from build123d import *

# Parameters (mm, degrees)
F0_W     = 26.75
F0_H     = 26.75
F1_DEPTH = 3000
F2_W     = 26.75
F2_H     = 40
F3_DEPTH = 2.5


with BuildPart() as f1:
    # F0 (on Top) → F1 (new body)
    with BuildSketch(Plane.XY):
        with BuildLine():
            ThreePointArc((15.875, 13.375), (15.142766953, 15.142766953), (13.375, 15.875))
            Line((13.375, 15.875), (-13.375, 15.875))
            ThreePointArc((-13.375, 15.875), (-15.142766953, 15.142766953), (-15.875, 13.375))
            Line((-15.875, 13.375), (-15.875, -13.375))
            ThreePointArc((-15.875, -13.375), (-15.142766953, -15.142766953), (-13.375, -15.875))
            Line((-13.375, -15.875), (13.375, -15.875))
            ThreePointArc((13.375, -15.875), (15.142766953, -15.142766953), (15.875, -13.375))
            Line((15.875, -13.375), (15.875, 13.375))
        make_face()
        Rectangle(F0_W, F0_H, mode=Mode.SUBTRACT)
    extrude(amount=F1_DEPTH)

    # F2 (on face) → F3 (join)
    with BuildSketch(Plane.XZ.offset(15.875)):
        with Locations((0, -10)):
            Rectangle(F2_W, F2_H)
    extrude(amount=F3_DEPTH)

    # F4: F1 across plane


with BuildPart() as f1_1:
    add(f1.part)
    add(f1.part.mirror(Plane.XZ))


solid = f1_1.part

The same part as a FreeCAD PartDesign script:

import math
import FreeCAD as App
import Part
import Sketcher
from FreeCAD import Vector

doc = App.newDocument("Part")
body = doc.addObject("PartDesign::Body", "Body")

# Sketch on XY plane
sketch1 = body.newObject("Sketcher::SketchObject", "Sketch")
sketch1.AttachmentSupport = (doc.getObject("XY_Plane"), [""])
sketch1.MapMode = "FlatFace"
sketch1.addGeometry(Part.ArcOfCircle(Part.Circle(Vector(13.4, 13.4, 0), Vector(0, 0, 1), 2.5), math.radians(0), math.radians(90)), False)
sketch1.addGeometry(Part.LineSegment(Vector(13.4, 15.9, 0), Vector(-13.4, 15.9, 0)), False)
sketch1.addGeometry(Part.ArcOfCircle(Part.Circle(Vector(-13.4, 13.4, 0), Vector(0, 0, 1), 2.5), math.radians(90), math.radians(180)), False)
sketch1.addGeometry(Part.LineSegment(Vector(-15.9, 13.4, 0), Vector(-15.9, -13.4, 0)), False)
sketch1.addGeometry(Part.ArcOfCircle(Part.Circle(Vector(-13.4, -13.4, 0), Vector(0, 0, 1), 2.5), math.radians(180), math.radians(270)), False)
sketch1.addGeometry(Part.LineSegment(Vector(-13.4, -15.9, 0), Vector(13.4, -15.9, 0)), False)
sketch1.addGeometry(Part.ArcOfCircle(Part.Circle(Vector(13.4, -13.4, 0), Vector(0, 0, 1), 2.5), math.radians(-90), math.radians(0)), False)
sketch1.addGeometry(Part.LineSegment(Vector(15.9, -13.4, 0), Vector(15.9, 13.4, 0)), False)
sketch1.addGeometry(Part.LineSegment(Vector(13.4, -13.4, 0), Vector(-13.4, -13.4, 0)), False)
sketch1.addGeometry(Part.LineSegment(Vector(-13.4, -13.4, 0), Vector(-13.4, 13.4, 0)), False)
sketch1.addGeometry(Part.LineSegment(Vector(-13.4, 13.4, 0), Vector(13.4, 13.4, 0)), False)
sketch1.addGeometry(Part.LineSegment(Vector(13.4, 13.4, 0), Vector(13.4, -13.4, 0)), False)
sketch1.addConstraint(Sketcher.Constraint("Tangent", 0, 2, 1, 1))
sketch1.addConstraint(Sketcher.Constraint("Tangent", 1, 2, 2, 1))
sketch1.addConstraint(Sketcher.Constraint("Tangent", 2, 2, 3, 1))
sketch1.addConstraint(Sketcher.Constraint("Tangent", 3, 2, 4, 1))
sketch1.addConstraint(Sketcher.Constraint("Tangent", 4, 2, 5, 1))
sketch1.addConstraint(Sketcher.Constraint("Tangent", 5, 2, 6, 1))
sketch1.addConstraint(Sketcher.Constraint("Tangent", 6, 2, 7, 1))
sketch1.addConstraint(Sketcher.Constraint("Tangent", 7, 2, 0, 1))
sketch1.addConstraint(Sketcher.Constraint("Coincident", 8, 2, 9, 1))
sketch1.addConstraint(Sketcher.Constraint("Coincident", 9, 2, 10, 1))
sketch1.addConstraint(Sketcher.Constraint("Coincident", 10, 2, 11, 1))
sketch1.addConstraint(Sketcher.Constraint("Coincident", 11, 2, 8, 1))
sketch1.addConstraint(Sketcher.Constraint("Horizontal", 1))
sketch1.addConstraint(Sketcher.Constraint("Vertical", 3))
sketch1.addConstraint(Sketcher.Constraint("Horizontal", 5))
sketch1.addConstraint(Sketcher.Constraint("Vertical", 7))
sketch1.addConstraint(Sketcher.Constraint("Horizontal", 8))
sketch1.addConstraint(Sketcher.Constraint("Vertical", 9))
sketch1.addConstraint(Sketcher.Constraint("Horizontal", 10))
sketch1.addConstraint(Sketcher.Constraint("Vertical", 11))
sketch1.addConstraint(Sketcher.Constraint("Coincident", 8, 2, 4, 3))
sketch1.addConstraint(Sketcher.Constraint("Coincident", 9, 2, 2, 3))
sketch1.addConstraint(Sketcher.Constraint("Coincident", 10, 2, 0, 3))
sketch1.addConstraint(Sketcher.Constraint("Equal", 4, 6))
sketch1.addConstraint(Sketcher.Constraint("Symmetric", 0, 3, 4, 3, -1, 1))
sketch1.addConstraint(Sketcher.Constraint("Equal", 10, 3))
sketch1.addConstraint(Sketcher.Constraint("Radius", 0, 2.5))
sketch1.addConstraint(Sketcher.Constraint("DistanceX", 1, 2, 1, 1, 26.75))
pad1 = body.newObject("PartDesign::Pad", "Pad")
pad1.Profile = sketch1
pad1.Length = 3000

# Sketch on XZ plane
sketch2 = body.newObject("Sketcher::SketchObject", "Sketch001")
sketch2.AttachmentSupport = (doc.getObject("XZ_Plane"), [""])
sketch2.MapMode = "FlatFace"
sketch2.AttachmentOffset = App.Placement(Vector(0, 0, 15.875), App.Rotation())
sketch2.addGeometry(Part.LineSegment(Vector(-13, 10, 0), Vector(-13, -30, 0)), False)
sketch2.addGeometry(Part.LineSegment(Vector(-13, -30, 0), Vector(13, -30, 0)), False)
sketch2.addGeometry(Part.LineSegment(Vector(13, -30, 0), Vector(13, 10, 0)), False)
sketch2.addGeometry(Part.LineSegment(Vector(13, 10, 0), Vector(-13, 10, 0)), False)
sketch2.addConstraint(Sketcher.Constraint("Coincident", 0, 2, 1, 1))
sketch2.addConstraint(Sketcher.Constraint("Coincident", 1, 2, 2, 1))
sketch2.addConstraint(Sketcher.Constraint("Coincident", 2, 2, 3, 1))
sketch2.addConstraint(Sketcher.Constraint("Coincident", 3, 2, 0, 1))
sketch2.addConstraint(Sketcher.Constraint("Vertical", 0))
sketch2.addConstraint(Sketcher.Constraint("Horizontal", 1))
sketch2.addConstraint(Sketcher.Constraint("Vertical", 2))
sketch2.addConstraint(Sketcher.Constraint("Horizontal", 3))
sketch2.addConstraint(Sketcher.Constraint("DistanceY", 0, 2, 0, 1, 40.0))
sketch2.addConstraint(Sketcher.Constraint("DistanceY", 0, 2, -1, 1, 30.0))
sketch2.addConstraint(Sketcher.Constraint("DistanceX", 1, 1, 1, 2, 26.75))
sketch2.addConstraint(Sketcher.Constraint("DistanceX", 0, 2, -1, 1, 13.375))
pad2 = body.newObject("PartDesign::Pad", "Pad001")
pad2.Profile = sketch2
pad2.Length = 2.5
body2 = doc.addObject("PartDesign::Body", "Body001")
doc.recompute()

body2.BaseFeature = body
doc.recompute()

mirroring = doc.addObject("Part::Mirroring", "Mirroring")
mirroring.Source = body
mirroring.Base = Vector(0, 0, 0)
mirroring.Normal = Vector(0, -1, 0)
body3 = doc.addObject("PartDesign::Body", "Body002")
body3.BaseFeature = mirroring
boolean = body2.newObject("PartDesign::Boolean", "Boolean")
boolean.Type = "Fuse"
boolean.addObjects([body3])
doc.recompute()
mirroring.Visibility = False

doc.recompute()
